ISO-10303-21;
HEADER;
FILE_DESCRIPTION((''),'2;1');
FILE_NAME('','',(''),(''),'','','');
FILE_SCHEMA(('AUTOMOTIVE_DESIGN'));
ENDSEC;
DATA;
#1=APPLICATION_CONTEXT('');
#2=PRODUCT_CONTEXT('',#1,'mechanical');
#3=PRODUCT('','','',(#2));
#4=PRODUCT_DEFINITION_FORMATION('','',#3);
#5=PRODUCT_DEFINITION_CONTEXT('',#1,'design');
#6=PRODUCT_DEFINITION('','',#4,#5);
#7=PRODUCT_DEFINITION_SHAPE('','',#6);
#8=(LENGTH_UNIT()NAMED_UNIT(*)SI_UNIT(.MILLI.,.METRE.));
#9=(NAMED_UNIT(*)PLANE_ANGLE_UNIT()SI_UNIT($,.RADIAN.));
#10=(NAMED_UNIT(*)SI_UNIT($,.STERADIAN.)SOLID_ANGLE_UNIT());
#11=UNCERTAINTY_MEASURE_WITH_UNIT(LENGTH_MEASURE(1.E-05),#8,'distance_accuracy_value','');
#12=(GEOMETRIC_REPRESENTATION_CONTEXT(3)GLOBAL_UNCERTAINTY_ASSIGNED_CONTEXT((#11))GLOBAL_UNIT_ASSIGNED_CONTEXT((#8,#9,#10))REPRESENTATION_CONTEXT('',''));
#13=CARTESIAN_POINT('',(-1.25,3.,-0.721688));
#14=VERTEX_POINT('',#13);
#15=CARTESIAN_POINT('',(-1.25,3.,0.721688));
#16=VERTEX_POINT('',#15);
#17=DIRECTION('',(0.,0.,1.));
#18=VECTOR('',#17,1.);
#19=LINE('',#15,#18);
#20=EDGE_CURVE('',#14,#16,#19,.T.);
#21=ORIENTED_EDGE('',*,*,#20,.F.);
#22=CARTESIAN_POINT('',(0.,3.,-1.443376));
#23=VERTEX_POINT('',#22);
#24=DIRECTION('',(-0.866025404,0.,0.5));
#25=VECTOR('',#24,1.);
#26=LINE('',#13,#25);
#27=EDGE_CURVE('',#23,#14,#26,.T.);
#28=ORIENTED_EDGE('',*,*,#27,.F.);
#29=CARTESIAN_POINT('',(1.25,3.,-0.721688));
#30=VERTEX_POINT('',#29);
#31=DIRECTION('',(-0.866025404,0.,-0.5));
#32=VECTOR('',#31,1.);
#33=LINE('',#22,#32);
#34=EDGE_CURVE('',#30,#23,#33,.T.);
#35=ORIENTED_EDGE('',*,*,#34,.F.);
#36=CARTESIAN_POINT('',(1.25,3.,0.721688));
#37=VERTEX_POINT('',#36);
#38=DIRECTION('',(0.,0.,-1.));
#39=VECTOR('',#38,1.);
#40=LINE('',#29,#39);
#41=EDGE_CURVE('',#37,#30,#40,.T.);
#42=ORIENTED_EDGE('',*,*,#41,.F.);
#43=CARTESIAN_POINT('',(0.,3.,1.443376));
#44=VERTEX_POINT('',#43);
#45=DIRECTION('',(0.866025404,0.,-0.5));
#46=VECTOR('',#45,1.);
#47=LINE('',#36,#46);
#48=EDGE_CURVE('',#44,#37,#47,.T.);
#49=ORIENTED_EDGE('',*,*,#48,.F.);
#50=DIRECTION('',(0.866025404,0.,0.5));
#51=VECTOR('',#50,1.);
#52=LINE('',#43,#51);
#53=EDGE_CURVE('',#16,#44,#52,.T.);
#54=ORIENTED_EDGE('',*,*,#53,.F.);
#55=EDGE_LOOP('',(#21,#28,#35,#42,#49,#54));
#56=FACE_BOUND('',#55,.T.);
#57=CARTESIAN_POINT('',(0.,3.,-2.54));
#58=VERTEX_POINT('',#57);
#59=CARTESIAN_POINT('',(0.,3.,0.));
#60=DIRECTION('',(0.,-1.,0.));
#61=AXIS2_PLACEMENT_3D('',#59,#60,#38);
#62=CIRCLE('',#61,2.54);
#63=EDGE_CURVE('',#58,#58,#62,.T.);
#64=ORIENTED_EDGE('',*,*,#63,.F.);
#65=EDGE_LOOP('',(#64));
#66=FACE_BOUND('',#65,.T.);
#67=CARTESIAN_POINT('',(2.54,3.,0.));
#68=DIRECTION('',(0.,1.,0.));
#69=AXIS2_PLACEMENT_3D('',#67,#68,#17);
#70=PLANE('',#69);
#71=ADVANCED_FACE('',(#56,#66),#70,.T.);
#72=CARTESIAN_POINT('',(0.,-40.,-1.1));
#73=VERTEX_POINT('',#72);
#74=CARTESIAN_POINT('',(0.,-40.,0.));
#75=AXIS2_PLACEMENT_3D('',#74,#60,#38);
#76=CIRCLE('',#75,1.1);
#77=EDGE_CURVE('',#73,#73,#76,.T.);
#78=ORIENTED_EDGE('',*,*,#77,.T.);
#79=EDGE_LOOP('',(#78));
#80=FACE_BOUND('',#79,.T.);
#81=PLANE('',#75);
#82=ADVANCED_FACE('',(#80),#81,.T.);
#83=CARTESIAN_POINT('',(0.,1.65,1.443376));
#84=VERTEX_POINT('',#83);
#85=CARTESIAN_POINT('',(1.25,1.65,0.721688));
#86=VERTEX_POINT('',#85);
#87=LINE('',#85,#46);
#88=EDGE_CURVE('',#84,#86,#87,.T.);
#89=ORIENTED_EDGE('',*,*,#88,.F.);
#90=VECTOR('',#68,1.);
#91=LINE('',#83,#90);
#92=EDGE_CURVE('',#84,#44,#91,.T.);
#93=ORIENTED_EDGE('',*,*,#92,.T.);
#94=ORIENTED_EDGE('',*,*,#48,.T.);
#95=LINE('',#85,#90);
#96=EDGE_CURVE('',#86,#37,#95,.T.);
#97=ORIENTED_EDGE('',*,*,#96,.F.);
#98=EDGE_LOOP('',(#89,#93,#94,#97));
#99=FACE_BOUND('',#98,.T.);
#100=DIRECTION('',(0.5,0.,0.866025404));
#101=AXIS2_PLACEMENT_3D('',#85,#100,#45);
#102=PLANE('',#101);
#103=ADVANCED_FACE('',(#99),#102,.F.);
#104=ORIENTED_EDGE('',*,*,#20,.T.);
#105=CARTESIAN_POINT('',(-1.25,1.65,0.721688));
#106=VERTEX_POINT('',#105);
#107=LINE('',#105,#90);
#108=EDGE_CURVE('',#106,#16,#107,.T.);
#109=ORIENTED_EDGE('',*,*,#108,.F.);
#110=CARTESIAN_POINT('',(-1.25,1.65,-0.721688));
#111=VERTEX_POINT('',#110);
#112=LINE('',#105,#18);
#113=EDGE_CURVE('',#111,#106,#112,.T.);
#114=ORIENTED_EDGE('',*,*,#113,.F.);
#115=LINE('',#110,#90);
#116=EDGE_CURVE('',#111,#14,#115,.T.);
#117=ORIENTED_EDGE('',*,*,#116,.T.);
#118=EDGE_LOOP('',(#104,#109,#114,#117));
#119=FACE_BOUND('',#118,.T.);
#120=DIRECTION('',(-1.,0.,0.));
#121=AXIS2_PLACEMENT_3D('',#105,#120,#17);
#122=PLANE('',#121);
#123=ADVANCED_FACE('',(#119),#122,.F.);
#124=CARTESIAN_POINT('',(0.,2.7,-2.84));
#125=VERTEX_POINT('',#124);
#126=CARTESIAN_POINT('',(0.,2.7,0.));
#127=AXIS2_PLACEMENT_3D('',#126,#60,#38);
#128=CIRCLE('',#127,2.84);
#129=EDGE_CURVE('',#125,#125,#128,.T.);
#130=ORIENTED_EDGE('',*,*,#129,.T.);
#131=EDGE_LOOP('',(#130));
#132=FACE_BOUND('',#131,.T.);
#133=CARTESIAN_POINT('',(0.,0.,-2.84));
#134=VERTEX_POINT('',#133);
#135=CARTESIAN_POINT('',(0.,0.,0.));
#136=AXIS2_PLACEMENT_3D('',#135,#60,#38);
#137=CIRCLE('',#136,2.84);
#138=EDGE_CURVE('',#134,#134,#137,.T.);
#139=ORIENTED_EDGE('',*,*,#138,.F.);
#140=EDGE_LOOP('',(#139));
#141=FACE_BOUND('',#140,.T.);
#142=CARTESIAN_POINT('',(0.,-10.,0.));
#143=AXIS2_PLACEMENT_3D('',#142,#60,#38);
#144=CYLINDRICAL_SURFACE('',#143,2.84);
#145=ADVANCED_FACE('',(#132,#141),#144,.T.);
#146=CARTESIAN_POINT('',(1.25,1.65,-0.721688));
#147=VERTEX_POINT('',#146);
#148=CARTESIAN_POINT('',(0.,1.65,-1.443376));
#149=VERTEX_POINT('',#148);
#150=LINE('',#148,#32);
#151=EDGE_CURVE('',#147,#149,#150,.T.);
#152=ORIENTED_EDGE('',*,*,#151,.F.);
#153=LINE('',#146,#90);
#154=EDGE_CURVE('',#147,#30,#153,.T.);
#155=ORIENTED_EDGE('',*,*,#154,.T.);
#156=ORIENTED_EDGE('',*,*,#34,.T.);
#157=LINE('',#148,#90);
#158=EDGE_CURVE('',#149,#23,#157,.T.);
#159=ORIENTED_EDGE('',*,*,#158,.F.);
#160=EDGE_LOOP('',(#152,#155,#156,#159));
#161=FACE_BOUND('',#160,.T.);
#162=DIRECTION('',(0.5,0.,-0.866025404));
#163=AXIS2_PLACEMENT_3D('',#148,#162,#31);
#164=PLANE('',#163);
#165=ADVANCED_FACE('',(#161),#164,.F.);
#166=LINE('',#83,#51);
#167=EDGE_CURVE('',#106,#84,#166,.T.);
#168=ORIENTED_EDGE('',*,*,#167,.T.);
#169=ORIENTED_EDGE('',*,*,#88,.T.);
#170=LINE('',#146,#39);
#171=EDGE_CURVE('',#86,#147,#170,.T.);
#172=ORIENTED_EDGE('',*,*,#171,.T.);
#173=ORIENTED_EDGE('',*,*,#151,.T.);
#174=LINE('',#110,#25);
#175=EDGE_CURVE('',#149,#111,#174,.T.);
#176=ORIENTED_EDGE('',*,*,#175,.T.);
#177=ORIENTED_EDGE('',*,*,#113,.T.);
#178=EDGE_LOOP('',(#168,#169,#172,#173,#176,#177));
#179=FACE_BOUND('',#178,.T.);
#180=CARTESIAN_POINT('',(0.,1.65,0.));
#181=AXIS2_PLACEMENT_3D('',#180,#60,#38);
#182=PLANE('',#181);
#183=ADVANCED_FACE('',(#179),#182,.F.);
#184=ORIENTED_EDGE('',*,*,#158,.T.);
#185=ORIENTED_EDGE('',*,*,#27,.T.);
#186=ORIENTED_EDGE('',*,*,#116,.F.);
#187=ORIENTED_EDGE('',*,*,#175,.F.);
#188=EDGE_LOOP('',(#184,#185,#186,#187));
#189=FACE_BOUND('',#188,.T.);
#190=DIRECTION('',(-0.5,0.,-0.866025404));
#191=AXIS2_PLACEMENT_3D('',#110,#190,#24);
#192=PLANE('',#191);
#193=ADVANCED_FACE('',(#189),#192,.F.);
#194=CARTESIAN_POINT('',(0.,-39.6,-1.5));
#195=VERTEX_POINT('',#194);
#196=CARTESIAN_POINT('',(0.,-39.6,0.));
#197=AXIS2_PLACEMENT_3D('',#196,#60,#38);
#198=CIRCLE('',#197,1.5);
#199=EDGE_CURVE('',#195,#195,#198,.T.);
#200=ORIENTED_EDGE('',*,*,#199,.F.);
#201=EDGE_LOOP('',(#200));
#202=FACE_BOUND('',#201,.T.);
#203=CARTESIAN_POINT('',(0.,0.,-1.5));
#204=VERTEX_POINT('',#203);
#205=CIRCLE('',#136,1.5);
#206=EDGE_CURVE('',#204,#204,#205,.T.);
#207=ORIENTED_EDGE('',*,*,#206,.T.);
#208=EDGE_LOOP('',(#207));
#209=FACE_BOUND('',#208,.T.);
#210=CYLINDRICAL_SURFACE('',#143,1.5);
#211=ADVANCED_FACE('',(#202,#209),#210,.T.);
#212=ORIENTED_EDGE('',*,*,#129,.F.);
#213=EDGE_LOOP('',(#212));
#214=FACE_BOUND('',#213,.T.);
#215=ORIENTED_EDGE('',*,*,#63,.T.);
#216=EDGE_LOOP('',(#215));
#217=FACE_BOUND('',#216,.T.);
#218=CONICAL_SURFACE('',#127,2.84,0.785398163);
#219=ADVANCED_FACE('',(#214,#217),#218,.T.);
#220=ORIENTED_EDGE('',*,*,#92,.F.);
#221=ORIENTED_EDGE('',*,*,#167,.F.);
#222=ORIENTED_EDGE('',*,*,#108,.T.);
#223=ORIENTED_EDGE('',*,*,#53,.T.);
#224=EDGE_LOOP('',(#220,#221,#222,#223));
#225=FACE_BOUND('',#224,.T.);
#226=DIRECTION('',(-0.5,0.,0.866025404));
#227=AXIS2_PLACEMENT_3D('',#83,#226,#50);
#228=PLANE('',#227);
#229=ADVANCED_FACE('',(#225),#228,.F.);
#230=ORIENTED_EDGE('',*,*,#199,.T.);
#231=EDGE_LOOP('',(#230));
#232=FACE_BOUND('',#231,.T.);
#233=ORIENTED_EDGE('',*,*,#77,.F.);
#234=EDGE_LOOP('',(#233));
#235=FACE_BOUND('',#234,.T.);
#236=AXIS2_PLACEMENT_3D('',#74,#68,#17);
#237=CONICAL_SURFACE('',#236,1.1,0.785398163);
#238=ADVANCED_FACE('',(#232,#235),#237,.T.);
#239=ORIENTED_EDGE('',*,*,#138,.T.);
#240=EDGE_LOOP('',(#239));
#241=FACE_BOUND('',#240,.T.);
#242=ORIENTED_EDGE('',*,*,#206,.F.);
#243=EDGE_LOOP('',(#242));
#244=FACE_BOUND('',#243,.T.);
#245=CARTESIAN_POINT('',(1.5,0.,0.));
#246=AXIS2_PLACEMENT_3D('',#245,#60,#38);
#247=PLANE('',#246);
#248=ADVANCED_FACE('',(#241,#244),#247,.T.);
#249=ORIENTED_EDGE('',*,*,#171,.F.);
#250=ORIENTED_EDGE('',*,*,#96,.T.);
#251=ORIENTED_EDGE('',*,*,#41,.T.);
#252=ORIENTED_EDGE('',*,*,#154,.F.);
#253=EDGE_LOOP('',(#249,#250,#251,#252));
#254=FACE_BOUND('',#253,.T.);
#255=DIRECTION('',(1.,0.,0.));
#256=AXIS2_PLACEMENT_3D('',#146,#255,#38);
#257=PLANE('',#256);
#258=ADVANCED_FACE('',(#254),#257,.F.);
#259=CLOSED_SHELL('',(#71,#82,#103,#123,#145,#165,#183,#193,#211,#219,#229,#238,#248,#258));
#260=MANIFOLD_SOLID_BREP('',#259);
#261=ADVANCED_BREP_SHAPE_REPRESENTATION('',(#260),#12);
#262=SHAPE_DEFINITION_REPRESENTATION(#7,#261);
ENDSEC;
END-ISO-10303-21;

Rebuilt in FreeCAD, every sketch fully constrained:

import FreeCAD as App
import Part
import Sketcher
Q = App.Units.Quantity


def add_polygon(sketch, points):
    """Adds a closed chain of lines whose ends are joined by coincident constraints."""
    first, n = sketch.GeometryCount, len(points)
    for a, b in zip(points, points[1:] + points[:1]):
        sketch.addGeometry(Part.LineSegment(App.Vector(*a, 0), App.Vector(*b, 0)), False)
    for i in range(n):
        sketch.addConstraint(Sketcher.Constraint("Coincident", first + i, 2, first + (i + 1) % n, 1))

doc = App.newDocument("Part")
params = doc.addObject("Spreadsheet::Sheet", "Params")
for row, (alias, value) in enumerate([
    ("sketch1_height", "43 mm"),
    ("sketch1_width", "1.1 mm"),
    ("sketch1_height2", "39.6 mm"),
    ("sketch1_height3", "2.7 mm"),
    ("sketch1_width2", "1.34 mm"),
    ("revolution_angle", "360 deg"),
    ("pocket1_length", "1.35 mm"),
], start=1):
    params.set(f"A{row}", alias)
    params.set(f"B{row}", "=" + value)
    params.setAlias(f"B{row}", alias)

body = doc.addObject("PartDesign::Body", "Body")

# Sketch on XY plane
sketch1 = body.newObject("Sketcher::SketchObject", "Sketch")
sketch1.AttachmentSupport = (doc.getObject("XY_Plane"), [""])
sketch1.MapMode = "FlatFace"
add_polygon(sketch1, [(0, -40), (1.1, -40), (1.5, -39.6), (1.5, 0), (2.84, 0), (2.84, 2.7), (2.54, 3), (0, 3)])  # lines 0-7
sketch1.addConstraint(Sketcher.Constraint("Horizontal", 0))
sketch1.addConstraint(Sketcher.Constraint("Vertical", 2))
sketch1.addConstraint(Sketcher.Constraint("Horizontal", 3))
sketch1.addConstraint(Sketcher.Constraint("Vertical", 4))
sketch1.addConstraint(Sketcher.Constraint("Horizontal", 6))
sketch1.addConstraint(Sketcher.Constraint("Vertical", 7))
sketch1.addConstraint(Sketcher.Constraint("PointOnObject", 2, 2, -1))
sketch1.addConstraint(Sketcher.Constraint("PointOnObject", 6, 2, -2))
sketch1.addConstraint(Sketcher.Constraint("Perpendicular", 1, 5))
sketch1.addConstraint(Sketcher.Constraint("DistanceY", 7, 2, 7, 1, 43.0))
sketch1.addConstraint(Sketcher.Constraint("Angle", 1, Q("45 deg")))
sketch1.addConstraint(Sketcher.Constraint("DistanceX", 0, 1, 0, 2, 1.1))
sketch1.addConstraint(Sketcher.Constraint("DistanceY", 2, 1, 2, 2, 39.6))
sketch1.addConstraint(Sketcher.Constraint("DistanceY", 4, 1, 4, 2, 2.7))
sketch1.addConstraint(Sketcher.Constraint("DistanceY", 0, 2, -1, 1, 40.0))
sketch1.addConstraint(Sketcher.Constraint("DistanceX", 3, 1, 3, 2, 1.34))
sketch1.setExpression("Constraints[17]", "Params.sketch1_height")
sketch1.setExpression("Constraints[19]", "Params.sketch1_width")
sketch1.setExpression("Constraints[20]", "Params.sketch1_height2")
sketch1.setExpression("Constraints[21]", "Params.sketch1_height3")
sketch1.setExpression("Constraints[23]", "Params.sketch1_width2")
revolution = body.newObject("PartDesign::Revolution", "Revolution")
revolution.Profile = sketch1
revolution.ReferenceAxis = (sketch1, ["V_Axis"])
revolution.setExpression("Angle", "Params.revolution_angle")

# Sketch on XZ plane
sketch2 = body.newObject("Sketcher::SketchObject", "Sketch001")
sketch2.AttachmentSupport = (doc.getObject("XZ_Plane"), [""])
sketch2.MapMode = "FlatFace"
sketch2.AttachmentOffset = App.Placement(App.Vector(0, 0, -3), App.Rotation())
add_polygon(sketch2, [(0, 1.443376), (1.25, 0.721688), (1.25, -0.721688), (0, -1.443376), (-1.25, -0.721688), (-1.25, 0.721688)])  # lines 0-5
sketch2.addConstraint(Sketcher.Constraint("Vertical", 1))
sketch2.addConstraint(Sketcher.Constraint("Vertical", 4))
sketch2.addConstraint(Sketcher.Constraint("Symmetric", 0, 2, 3, 2, -1, 1))
sketch2.addConstraint(Sketcher.Constraint("Symmetric", 2, 2, 5, 2, -1, 1))
sketch2.addConstraint(Sketcher.Constraint("PointOnObject", 2, 2, -2))
sketch2.addConstraint(Sketcher.Constraint("Parallel", 2, 5))
sketch2.addConstraint(Sketcher.Constraint("Horizontal", 1, 2, 3, 2))
sketch2.addConstraint(Sketcher.Constraint("Angle", 0, Q("-30 deg")))
sketch2.addConstraint(Sketcher.Constraint("DistanceX", 3, 2, 1, 2, 2.5))
sketch2.addConstraint(Sketcher.Constraint("DistanceY", 1, 2, 1, 1, 1.443376))
pocket1 = body.newObject("PartDesign::Pocket", "Pocket")
pocket1.Profile = sketch2
pocket1.setExpression("Length", "Params.pocket1_length")
pocket1.Reversed = True

doc.recompute()
